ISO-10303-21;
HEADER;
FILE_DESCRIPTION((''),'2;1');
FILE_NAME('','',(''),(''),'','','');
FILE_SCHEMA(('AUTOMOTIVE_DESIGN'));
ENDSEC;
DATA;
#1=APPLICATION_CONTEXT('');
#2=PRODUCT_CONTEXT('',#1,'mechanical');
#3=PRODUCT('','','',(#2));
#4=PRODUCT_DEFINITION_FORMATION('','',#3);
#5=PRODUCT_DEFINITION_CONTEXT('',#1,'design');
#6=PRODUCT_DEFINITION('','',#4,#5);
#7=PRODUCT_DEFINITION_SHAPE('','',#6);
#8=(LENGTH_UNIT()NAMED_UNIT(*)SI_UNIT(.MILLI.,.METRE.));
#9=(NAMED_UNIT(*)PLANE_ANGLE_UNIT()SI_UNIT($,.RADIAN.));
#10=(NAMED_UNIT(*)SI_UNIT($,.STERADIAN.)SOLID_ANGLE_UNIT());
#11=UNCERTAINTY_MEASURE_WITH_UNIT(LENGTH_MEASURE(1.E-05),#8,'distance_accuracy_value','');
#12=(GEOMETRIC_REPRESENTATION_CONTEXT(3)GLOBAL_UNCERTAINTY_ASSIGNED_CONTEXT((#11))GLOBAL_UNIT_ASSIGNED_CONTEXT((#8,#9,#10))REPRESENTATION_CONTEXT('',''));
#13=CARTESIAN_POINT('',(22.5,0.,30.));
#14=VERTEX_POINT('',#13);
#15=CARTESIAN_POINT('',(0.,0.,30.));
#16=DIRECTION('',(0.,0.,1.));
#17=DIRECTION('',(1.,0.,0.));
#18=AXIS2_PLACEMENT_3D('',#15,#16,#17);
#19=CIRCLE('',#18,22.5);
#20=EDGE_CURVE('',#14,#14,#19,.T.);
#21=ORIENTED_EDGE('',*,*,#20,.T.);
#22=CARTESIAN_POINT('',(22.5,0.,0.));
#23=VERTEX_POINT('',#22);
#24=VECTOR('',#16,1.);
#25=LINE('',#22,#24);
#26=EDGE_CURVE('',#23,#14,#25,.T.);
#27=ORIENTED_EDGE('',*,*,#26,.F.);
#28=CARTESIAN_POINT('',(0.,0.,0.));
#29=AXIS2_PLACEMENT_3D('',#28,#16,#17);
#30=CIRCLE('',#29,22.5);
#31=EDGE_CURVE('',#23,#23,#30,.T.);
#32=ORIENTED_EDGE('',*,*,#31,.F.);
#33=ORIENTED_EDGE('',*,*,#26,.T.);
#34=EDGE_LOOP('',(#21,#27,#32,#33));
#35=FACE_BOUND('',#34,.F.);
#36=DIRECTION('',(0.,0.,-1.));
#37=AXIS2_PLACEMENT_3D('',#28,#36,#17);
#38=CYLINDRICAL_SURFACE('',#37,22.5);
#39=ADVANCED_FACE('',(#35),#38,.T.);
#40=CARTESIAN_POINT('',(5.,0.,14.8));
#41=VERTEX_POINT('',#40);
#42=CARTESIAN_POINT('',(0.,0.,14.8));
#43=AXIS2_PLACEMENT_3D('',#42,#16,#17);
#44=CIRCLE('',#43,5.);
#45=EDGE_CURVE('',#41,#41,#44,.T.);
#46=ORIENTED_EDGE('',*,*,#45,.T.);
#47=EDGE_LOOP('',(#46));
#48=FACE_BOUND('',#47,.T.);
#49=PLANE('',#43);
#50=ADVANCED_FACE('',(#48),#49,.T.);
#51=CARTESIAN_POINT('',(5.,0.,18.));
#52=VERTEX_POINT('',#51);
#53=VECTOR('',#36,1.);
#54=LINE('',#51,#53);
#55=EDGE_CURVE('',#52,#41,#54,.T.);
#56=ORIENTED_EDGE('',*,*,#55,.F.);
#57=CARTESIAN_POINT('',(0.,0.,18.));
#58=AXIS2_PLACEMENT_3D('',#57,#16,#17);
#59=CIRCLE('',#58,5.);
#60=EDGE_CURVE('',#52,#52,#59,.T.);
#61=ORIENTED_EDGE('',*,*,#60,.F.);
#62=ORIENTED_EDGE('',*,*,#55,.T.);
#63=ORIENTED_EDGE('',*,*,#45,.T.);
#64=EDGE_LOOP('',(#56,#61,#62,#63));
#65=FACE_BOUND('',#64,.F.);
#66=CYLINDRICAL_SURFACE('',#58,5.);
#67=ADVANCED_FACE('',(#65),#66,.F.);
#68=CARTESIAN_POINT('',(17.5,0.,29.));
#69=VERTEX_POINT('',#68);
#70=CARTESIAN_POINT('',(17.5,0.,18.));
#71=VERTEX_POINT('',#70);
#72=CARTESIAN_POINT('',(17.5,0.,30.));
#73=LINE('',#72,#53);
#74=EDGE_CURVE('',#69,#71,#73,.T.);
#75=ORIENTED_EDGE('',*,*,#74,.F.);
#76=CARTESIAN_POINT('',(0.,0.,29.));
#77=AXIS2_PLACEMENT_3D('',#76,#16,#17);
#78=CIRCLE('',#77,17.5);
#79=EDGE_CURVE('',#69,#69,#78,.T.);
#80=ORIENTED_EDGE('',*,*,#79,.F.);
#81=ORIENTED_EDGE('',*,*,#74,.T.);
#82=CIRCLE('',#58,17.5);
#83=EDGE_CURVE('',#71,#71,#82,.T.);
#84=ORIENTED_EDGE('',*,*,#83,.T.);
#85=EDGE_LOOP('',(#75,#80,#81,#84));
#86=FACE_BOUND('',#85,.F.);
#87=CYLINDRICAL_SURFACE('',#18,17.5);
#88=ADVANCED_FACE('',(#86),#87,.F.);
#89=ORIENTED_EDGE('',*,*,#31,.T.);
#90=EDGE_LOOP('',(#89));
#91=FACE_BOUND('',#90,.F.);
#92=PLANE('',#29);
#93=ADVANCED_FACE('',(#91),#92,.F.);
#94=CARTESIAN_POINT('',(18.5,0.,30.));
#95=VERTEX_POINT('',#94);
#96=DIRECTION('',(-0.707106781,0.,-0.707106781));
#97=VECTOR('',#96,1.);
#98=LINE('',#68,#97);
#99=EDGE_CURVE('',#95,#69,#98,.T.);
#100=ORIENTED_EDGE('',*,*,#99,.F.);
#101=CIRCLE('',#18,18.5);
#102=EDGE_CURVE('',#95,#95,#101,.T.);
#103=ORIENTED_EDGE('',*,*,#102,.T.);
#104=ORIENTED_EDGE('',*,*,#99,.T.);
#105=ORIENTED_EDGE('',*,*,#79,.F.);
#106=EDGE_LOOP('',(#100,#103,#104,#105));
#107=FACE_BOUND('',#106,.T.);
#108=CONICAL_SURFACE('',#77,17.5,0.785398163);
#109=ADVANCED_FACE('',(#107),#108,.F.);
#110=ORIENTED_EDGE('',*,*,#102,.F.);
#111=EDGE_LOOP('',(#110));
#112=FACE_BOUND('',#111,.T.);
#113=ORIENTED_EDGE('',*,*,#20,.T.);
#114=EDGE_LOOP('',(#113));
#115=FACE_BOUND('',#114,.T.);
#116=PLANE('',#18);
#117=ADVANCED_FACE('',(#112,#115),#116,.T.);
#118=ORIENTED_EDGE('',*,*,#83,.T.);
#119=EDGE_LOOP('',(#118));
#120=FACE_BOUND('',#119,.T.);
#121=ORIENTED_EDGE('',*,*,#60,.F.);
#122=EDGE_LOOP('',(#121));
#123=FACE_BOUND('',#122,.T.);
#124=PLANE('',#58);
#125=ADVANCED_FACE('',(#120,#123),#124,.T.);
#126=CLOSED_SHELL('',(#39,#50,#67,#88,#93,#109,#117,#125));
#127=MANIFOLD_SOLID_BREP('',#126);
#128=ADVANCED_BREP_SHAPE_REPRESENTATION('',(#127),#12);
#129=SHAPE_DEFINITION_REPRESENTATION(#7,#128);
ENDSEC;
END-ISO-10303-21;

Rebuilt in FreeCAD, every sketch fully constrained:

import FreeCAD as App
import Part
import Sketcher
Q = App.Units.Quantity


def edges_at(feature, points):
    """Names of the edges that pass closest to the given points."""
    edges = feature.Shape.Edges
    near = lambda p: min(range(len(edges)), key=lambda i: edges[i].distToShape(Part.Vertex(*p))[0])
    return sorted({f"Edge{near(p) + 1}" for p in points})

doc = App.newDocument("Part")
params = doc.addObject("Spreadsheet::Sheet", "Params")
for row, (alias, value) in enumerate([
    ("sketch1_diameter", "45 mm"),
    ("pad1_length", "30 mm"),
    ("sketch2_diameter", "35 mm"),
    ("pocket1_length", "12 mm"),
    ("chamfer_size", "1 mm"),
    ("sketch3_diameter", "10 mm"),
    ("pocket2_length", "3.2 mm"),
], start=1):
    params.set(f"A{row}", alias)
    params.set(f"B{row}", "=" + value)
    params.setAlias(f"B{row}", alias)

body = doc.addObject("PartDesign::Body", "Body")

sketch1 = body.newObject("Sketcher::SketchObject", "Sketch")
sketch1.AttachmentSupport = (doc.getObject("XY_Plane"), [""])
sketch1.MapMode = "FlatFace"
sketch1.addGeometry(Part.Circle(App.Vector(0, 0, 0), App.Vector(0, 0, 1), 22), False)
sketch1.addConstraint([
    Sketcher.Constraint("Coincident", 0, 3, -1, 1),
    Sketcher.Constraint("Diameter", 0, Q("45 mm")),
])
sketch1.setExpression("Constraints[1]", "Params.sketch1_diameter")
pad1 = body.newObject("PartDesign::Pad", "Pad")
pad1.Profile = sketch1
pad1.setExpression("Length", "Params.pad1_length")

sketch2 = body.newObject("Sketcher::SketchObject", "Sketch001")
sketch2.AttachmentSupport = (doc.getObject("XY_Plane"), [""])
sketch2.MapMode = "FlatFace"
sketch2.AttachmentOffset = App.Placement(App.Vector(0, 0, 30), App.Rotation())
sketch2.addGeometry(Part.Circle(App.Vector(0, 0, 0), App.Vector(0, 0, 1), 18), False)
sketch2.addConstraint([
    Sketcher.Constraint("Coincident", 0, 3, -1, 1),
    Sketcher.Constraint("Diameter", 0, Q("35 mm")),
])
sketch2.setExpression("Constraints[1]", "Params.sketch2_diameter")
pocket1 = body.newObject("PartDesign::Pocket", "Pocket")
pocket1.Profile = sketch2
pocket1.setExpression("Length", "Params.pocket1_length")
doc.recompute()

chamfer = body.newObject("PartDesign::Chamfer", "Chamfer")
chamfer.Base = (pocket1, edges_at(pocket1, [(-17.5, 0, 30)]))
chamfer.setExpression("Size", "Params.chamfer_size")

sketch3 = body.newObject("Sketcher::SketchObject", "Sketch002")
sketch3.AttachmentSupport = (doc.getObject("XY_Plane"), [""])
sketch3.MapMode = "FlatFace"
sketch3.AttachmentOffset = App.Placement(App.Vector(0, 0, 18), App.Rotation())
sketch3.addGeometry(Part.Circle(App.Vector(0, 0, 0), App.Vector(0, 0, 1), 5), False)
sketch3.addConstraint([
    Sketcher.Constraint("Coincident", 0, 3, -1, 1),
    Sketcher.Constraint("Diameter", 0, Q("10 mm")),
])
sketch3.setExpression("Constraints[1]", "Params.sketch3_diameter")
pocket2 = body.newObject("PartDesign::Pocket", "Pocket001")
pocket2.Profile = sketch3
pocket2.setExpression("Length", "Params.pocket2_length")

doc.recompute()
